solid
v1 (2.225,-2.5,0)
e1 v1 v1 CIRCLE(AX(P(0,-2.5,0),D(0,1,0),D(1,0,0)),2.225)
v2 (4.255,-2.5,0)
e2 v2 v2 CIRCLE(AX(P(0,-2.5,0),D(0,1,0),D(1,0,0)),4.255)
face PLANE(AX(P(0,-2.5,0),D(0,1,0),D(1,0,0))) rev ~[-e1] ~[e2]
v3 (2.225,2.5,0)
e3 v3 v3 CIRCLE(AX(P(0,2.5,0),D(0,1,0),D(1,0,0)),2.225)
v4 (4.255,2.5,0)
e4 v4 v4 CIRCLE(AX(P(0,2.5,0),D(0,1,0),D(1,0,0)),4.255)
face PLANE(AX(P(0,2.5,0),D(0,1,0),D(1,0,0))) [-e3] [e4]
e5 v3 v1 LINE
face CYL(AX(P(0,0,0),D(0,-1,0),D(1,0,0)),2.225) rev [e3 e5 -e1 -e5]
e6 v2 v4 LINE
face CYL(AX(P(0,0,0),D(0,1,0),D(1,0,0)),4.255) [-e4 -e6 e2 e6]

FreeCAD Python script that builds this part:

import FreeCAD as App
import Part
import Sketcher

V = App.Vector

doc = App.newDocument("Part")
body = doc.addObject("PartDesign::Body", "Body")

sketch1 = body.newObject("Sketcher::SketchObject", "Sketch")
sketch1.AttachmentSupport = (doc.getObject("XZ_Plane"), [""])
sketch1.MapMode = "FlatFace"
sketch1.addGeometry(Part.Circle(V(0, 0, 0), V(0, 0, 1), 4.3), False)
sketch1.addGeometry(Part.Circle(V(0, 0, 0), V(0, 0, 1), 2.2), False)
sketch1.addConstraint(Sketcher.Constraint("Coincident", 0, 3, -1, 1))
sketch1.addConstraint(Sketcher.Constraint("Coincident", 1, 3, -1, 1))
sketch1.addConstraint(Sketcher.Constraint("Diameter", 0, 8.51))
sketch1.addConstraint(Sketcher.Constraint("Diameter", 1, 4.45))
pad1 = body.newObject("PartDesign::Pad", "Pad")
pad1.Profile = sketch1
pad1.Length = 5
pad1.Midplane = True

doc.recompute()
